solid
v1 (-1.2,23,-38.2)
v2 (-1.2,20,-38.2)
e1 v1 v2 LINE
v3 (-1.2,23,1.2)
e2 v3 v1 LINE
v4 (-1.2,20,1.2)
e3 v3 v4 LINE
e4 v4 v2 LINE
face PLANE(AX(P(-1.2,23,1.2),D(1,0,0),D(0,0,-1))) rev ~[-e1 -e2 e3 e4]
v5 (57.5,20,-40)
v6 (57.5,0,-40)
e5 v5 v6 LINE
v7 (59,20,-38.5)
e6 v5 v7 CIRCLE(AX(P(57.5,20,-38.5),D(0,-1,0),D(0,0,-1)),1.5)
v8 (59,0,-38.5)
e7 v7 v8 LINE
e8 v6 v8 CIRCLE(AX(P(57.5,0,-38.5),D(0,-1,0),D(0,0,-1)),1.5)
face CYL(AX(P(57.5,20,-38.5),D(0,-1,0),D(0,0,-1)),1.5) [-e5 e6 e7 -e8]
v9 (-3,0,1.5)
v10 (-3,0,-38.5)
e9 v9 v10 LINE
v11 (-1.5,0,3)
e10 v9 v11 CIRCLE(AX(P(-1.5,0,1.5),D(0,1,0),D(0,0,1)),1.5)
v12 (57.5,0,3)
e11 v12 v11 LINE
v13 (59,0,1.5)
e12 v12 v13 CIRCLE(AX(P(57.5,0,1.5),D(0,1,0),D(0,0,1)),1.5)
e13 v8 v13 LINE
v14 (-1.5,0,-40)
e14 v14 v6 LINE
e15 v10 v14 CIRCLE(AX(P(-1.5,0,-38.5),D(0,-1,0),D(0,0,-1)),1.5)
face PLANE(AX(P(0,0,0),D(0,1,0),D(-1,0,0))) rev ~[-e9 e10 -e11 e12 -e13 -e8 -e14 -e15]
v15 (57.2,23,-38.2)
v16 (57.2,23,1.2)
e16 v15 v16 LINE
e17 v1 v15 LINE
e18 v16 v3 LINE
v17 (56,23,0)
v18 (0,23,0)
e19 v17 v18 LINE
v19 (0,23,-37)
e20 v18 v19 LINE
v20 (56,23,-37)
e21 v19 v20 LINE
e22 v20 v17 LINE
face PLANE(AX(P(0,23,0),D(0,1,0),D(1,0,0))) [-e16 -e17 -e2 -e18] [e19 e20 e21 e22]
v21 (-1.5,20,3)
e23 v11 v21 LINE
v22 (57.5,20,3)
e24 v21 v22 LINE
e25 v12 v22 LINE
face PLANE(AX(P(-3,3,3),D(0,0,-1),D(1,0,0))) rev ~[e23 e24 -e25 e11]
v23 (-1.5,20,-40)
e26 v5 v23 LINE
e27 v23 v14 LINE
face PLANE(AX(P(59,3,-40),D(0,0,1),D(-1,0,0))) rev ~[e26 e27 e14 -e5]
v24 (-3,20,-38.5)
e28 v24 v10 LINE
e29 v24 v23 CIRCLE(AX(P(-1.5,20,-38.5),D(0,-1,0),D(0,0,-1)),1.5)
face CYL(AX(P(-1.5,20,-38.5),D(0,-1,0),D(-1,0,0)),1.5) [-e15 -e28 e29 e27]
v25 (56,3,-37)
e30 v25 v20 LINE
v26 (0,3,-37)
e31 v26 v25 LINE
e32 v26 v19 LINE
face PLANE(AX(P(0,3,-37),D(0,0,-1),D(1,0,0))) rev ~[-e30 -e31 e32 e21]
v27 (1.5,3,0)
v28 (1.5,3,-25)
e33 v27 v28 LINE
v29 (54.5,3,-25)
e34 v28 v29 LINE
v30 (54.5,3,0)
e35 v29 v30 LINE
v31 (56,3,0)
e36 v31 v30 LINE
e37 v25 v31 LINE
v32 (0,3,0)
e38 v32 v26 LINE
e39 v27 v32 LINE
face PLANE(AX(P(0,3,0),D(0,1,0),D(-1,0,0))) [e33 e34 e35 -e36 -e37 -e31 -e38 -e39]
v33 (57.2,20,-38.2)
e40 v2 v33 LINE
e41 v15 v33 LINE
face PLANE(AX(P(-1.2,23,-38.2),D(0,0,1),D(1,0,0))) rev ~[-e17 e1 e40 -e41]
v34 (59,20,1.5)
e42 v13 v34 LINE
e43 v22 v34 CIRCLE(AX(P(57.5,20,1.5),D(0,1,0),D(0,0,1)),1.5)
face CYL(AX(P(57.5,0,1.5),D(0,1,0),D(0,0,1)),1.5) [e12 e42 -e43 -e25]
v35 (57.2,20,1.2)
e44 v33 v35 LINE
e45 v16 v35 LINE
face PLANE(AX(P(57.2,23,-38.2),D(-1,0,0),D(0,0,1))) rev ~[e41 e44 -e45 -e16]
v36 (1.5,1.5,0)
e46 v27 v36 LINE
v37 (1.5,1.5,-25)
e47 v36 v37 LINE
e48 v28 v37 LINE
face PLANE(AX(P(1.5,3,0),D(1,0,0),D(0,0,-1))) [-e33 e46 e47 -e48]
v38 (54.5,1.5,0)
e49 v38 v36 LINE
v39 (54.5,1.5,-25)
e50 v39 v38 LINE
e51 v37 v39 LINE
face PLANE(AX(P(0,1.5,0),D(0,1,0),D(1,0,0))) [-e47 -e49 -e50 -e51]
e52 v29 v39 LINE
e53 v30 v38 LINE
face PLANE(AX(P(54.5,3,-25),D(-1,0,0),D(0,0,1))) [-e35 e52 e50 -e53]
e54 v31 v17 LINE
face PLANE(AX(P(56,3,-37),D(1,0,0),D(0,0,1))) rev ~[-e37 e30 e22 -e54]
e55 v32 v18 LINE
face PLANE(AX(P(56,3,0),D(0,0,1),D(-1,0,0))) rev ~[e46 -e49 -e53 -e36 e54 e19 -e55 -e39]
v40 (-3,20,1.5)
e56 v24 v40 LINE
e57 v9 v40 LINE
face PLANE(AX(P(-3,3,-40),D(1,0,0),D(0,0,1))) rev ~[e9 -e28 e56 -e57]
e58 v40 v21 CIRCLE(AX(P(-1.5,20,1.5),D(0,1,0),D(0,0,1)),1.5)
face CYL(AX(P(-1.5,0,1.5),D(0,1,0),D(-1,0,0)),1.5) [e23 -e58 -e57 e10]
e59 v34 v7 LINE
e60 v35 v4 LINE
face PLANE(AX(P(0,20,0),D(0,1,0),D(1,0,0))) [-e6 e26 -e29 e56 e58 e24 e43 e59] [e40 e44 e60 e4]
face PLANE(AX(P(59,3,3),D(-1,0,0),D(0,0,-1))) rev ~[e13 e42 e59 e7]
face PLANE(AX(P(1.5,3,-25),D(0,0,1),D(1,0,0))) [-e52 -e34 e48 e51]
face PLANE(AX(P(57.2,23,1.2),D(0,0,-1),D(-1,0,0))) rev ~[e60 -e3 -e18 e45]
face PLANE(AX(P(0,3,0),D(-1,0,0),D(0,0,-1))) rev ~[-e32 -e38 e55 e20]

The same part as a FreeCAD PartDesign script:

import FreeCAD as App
import Part
import Sketcher

V = App.Vector


def edges_at(feature, points):
    """Names of the edges that pass closest to the given points."""
    edges = feature.Shape.Edges
    near = lambda p: min(range(len(edges)), key=lambda i: edges[i].distToShape(Part.Vertex(*p))[0])
    return sorted({f"Edge{near(p) + 1}" for p in points})


def add_polygon(sketch, points):
    """Adds a closed chain of lines whose ends are joined by coincident constraints."""
    first, n = sketch.GeometryCount, len(points)
    for a, b in zip(points, points[1:] + points[:1]):
        sketch.addGeometry(Part.LineSegment(App.Vector(*a, 0), App.Vector(*b, 0)), False)
    for i in range(n):
        sketch.addConstraint(Sketcher.Constraint("Coincident", first + i, 2, first + (i + 1) % n, 1))

doc = App.newDocument("Part")
params = doc.addObject("Spreadsheet::Sheet", "Params")
for row, (alias, value) in enumerate([
    ("sketch1_width", "62 mm"),
    ("sketch1_height", "43 mm"),
    ("pad1_length", "3 mm"),
    ("sketch2_width", "62 mm"),
    ("sketch2_height", "43 mm"),
    ("pad2_length", "20 mm"),
    ("sketch3_width", "53 mm"),
    ("sketch3_height", "25 mm"),
    ("pocket1_length", "1.5 mm"),
    ("sketch4_width", "62 mm"),
    ("sketch4_height", "43 mm"),
    ("pocket2_length", "3 mm"),
    ("fillet_radius", "1.5 mm"),
], start=1):
    params.set(f"A{row}", alias)
    params.set(f"B{row}", "=" + value)
    params.setAlias(f"B{row}", alias)

body = doc.addObject("PartDesign::Body", "Body")

sketch1 = body.newObject("Sketcher::SketchObject", "Sketch")
sketch1.AttachmentSupport = (doc.getObject("XZ_Plane"), [""])
sketch1.MapMode = "FlatFace"
add_polygon(sketch1, [(59, -40), (-3, -40), (-3, 3), (59, 3)])
sketch1.addConstraint([
    Sketcher.Constraint("Horizontal", 0),
    Sketcher.Constraint("Vertical", 1),
    Sketcher.Constraint("Horizontal", 2),
    Sketcher.Constraint("Vertical", 3),
    Sketcher.Constraint("DistanceX", 0, 2, -1, 1, 3.0),
    Sketcher.Constraint("DistanceY", -1, 1, 1, 2, 3.0),
    Sketcher.Constraint("DistanceX", 0, 2, 0, 1, 62.0),
    Sketcher.Constraint("DistanceY", 1, 1, 1, 2, 43.0),
])
sketch1.setExpression("Constraints[10]", "Params.sketch1_width")
sketch1.setExpression("Constraints[11]", "Params.sketch1_height")
pad1 = body.newObject("PartDesign::Pad", "Pad")
pad1.Profile = sketch1
pad1.setExpression("Length", "Params.pad1_length")
pad1.Reversed = True

sketch2 = body.newObject("Sketcher::SketchObject", "Sketch001")
sketch2.AttachmentSupport = (doc.getObject("XZ_Plane"), [""])
sketch2.MapMode = "FlatFace"
sketch2.AttachmentOffset = App.Placement(V(0, 0, -3), App.Rotation())
add_polygon(sketch2, [(-3, -40), (-3, 3), (59, 3), (59, -40)])
add_polygon(sketch2, [(0, 0), (0, -37), (56, -37), (56, 0)])
sketch2.addConstraint([
    Sketcher.Constraint("Vertical", 0),
    Sketcher.Constraint("Horizontal", 1),
    Sketcher.Constraint("Vertical", 2),
    Sketcher.Constraint("Horizontal", 3),
    Sketcher.Constraint("Vertical", 4),
    Sketcher.Constraint("Horizontal", 5),
    Sketcher.Constraint("Vertical", 6),
    Sketcher.Constraint("Horizontal", 7),
    Sketcher.Constraint("Coincident", 7, 2, -1, 1),
    Sketcher.Constraint("DistanceX", 0, 2, -1, 1, 3.0),
    Sketcher.Constraint("DistanceY", -1, 1, 0, 2, 3.0),
    Sketcher.Constraint("DistanceY", 3, 2, 4, 2, 3.0),
    Sketcher.Constraint("DistanceX", 5, 2, 2, 2, 3.0),
    Sketcher.Constraint("DistanceX", 1, 1, 1, 2, 62.0),
    Sketcher.Constraint("DistanceY", 0, 1, 0, 2, 43.0),
])
sketch2.setExpression("Constraints[21]", "Params.sketch2_width")
sketch2.setExpression("Constraints[22]", "Params.sketch2_height")
pad2 = body.newObject("PartDesign::Pad", "Pad001")
pad2.Profile = sketch2
pad2.setExpression("Length", "Params.pad2_length")
pad2.Reversed = True

sketch3 = body.newObject("Sketcher::SketchObject", "Sketch002")
sketch3.AttachmentSupport = (doc.getObject("XZ_Plane"), [""])
sketch3.MapMode = "FlatFace"
sketch3.AttachmentOffset = App.Placement(V(0, 0, -3), App.Rotation())
add_polygon(sketch3, [(54, -25), (2, -25), (2, 0), (54, 0)])
sketch3.addConstraint([
    Sketcher.Constraint("Horizontal", 0),
    Sketcher.Constraint("Vertical", 1),
    Sketcher.Constraint("Horizontal", 2),
    Sketcher.Constraint("Vertical", 3),
    Sketcher.Constraint("PointOnObject", 1, 2, -1),
    Sketcher.Constraint("DistanceX", 0, 2, 0, 1, 53.0),
    Sketcher.Constraint("DistanceY", 1, 1, 1, 2, 25.0),
    Sketcher.Constraint("DistanceX", -1, 1, 0, 2, 1.5),
])
sketch3.setExpression("Constraints[9]", "Params.sketch3_width")
sketch3.setExpression("Constraints[10]", "Params.sketch3_height")
pocket1 = body.newObject("PartDesign::Pocket", "Pocket")
pocket1.Profile = sketch3
pocket1.setExpression("Length", "Params.pocket1_length")
pocket1.Reversed = True

sketch4 = body.newObject("Sketcher::SketchObject", "Sketch003")
sketch4.AttachmentSupport = (doc.getObject("XZ_Plane"), [""])
sketch4.MapMode = "FlatFace"
sketch4.AttachmentOffset = App.Placement(V(0, 0, -23), App.Rotation())
add_polygon(sketch4, [(-3, -40), (-3, 3), (59, 3), (59, -40)])
add_polygon(sketch4, [(-1, 1), (-1, -38), (57, -38), (57, 1)])
sketch4.addConstraint([
    Sketcher.Constraint("Vertical", 0),
    Sketcher.Constraint("Horizontal", 1),
    Sketcher.Constraint("Vertical", 2),
    Sketcher.Constraint("Horizontal", 3),
    Sketcher.Constraint("Vertical", 4),
    Sketcher.Constraint("Horizontal", 5),
    Sketcher.Constraint("Vertical", 6),
    Sketcher.Constraint("Horizontal", 7),
    Sketcher.Constraint("DistanceX", 3, 2, 4, 2, 1.8),
    Sketcher.Constraint("DistanceY", 3, 2, 4, 2, 1.8),
    Sketcher.Constraint("DistanceX", 5, 2, 2, 2, 1.8),
    Sketcher.Constraint("DistanceY", 6, 2, 1, 2, 1.8),
    Sketcher.Constraint("DistanceX", 1, 1, 1, 2, 62.0),
    Sketcher.Constraint("DistanceY", 0, 1, 0, 2, 43.0),
    Sketcher.Constraint("DistanceX", 0, 2, -1, 1, 3.0),
    Sketcher.Constraint("DistanceY", -1, 1, 0, 2, 3.0),
])
sketch4.setExpression("Constraints[20]", "Params.sketch4_width")
sketch4.setExpression("Constraints[21]", "Params.sketch4_height")
pocket2 = body.newObject("PartDesign::Pocket", "Pocket001")
pocket2.Profile = sketch4
pocket2.setExpression("Length", "Params.pocket2_length")
pocket2.Reversed = True
doc.recompute()

fillet = body.newObject("PartDesign::Fillet", "Fillet")
fillet.Base = (pocket2, edges_at(pocket2, [
    (-3, 10, 3),
    (59, 10, 3),
    (59, 10, -40),
    (-3, 10, -40),
]))
fillet.setExpression("Radius", "Params.fillet_radius")

doc.recompute()
